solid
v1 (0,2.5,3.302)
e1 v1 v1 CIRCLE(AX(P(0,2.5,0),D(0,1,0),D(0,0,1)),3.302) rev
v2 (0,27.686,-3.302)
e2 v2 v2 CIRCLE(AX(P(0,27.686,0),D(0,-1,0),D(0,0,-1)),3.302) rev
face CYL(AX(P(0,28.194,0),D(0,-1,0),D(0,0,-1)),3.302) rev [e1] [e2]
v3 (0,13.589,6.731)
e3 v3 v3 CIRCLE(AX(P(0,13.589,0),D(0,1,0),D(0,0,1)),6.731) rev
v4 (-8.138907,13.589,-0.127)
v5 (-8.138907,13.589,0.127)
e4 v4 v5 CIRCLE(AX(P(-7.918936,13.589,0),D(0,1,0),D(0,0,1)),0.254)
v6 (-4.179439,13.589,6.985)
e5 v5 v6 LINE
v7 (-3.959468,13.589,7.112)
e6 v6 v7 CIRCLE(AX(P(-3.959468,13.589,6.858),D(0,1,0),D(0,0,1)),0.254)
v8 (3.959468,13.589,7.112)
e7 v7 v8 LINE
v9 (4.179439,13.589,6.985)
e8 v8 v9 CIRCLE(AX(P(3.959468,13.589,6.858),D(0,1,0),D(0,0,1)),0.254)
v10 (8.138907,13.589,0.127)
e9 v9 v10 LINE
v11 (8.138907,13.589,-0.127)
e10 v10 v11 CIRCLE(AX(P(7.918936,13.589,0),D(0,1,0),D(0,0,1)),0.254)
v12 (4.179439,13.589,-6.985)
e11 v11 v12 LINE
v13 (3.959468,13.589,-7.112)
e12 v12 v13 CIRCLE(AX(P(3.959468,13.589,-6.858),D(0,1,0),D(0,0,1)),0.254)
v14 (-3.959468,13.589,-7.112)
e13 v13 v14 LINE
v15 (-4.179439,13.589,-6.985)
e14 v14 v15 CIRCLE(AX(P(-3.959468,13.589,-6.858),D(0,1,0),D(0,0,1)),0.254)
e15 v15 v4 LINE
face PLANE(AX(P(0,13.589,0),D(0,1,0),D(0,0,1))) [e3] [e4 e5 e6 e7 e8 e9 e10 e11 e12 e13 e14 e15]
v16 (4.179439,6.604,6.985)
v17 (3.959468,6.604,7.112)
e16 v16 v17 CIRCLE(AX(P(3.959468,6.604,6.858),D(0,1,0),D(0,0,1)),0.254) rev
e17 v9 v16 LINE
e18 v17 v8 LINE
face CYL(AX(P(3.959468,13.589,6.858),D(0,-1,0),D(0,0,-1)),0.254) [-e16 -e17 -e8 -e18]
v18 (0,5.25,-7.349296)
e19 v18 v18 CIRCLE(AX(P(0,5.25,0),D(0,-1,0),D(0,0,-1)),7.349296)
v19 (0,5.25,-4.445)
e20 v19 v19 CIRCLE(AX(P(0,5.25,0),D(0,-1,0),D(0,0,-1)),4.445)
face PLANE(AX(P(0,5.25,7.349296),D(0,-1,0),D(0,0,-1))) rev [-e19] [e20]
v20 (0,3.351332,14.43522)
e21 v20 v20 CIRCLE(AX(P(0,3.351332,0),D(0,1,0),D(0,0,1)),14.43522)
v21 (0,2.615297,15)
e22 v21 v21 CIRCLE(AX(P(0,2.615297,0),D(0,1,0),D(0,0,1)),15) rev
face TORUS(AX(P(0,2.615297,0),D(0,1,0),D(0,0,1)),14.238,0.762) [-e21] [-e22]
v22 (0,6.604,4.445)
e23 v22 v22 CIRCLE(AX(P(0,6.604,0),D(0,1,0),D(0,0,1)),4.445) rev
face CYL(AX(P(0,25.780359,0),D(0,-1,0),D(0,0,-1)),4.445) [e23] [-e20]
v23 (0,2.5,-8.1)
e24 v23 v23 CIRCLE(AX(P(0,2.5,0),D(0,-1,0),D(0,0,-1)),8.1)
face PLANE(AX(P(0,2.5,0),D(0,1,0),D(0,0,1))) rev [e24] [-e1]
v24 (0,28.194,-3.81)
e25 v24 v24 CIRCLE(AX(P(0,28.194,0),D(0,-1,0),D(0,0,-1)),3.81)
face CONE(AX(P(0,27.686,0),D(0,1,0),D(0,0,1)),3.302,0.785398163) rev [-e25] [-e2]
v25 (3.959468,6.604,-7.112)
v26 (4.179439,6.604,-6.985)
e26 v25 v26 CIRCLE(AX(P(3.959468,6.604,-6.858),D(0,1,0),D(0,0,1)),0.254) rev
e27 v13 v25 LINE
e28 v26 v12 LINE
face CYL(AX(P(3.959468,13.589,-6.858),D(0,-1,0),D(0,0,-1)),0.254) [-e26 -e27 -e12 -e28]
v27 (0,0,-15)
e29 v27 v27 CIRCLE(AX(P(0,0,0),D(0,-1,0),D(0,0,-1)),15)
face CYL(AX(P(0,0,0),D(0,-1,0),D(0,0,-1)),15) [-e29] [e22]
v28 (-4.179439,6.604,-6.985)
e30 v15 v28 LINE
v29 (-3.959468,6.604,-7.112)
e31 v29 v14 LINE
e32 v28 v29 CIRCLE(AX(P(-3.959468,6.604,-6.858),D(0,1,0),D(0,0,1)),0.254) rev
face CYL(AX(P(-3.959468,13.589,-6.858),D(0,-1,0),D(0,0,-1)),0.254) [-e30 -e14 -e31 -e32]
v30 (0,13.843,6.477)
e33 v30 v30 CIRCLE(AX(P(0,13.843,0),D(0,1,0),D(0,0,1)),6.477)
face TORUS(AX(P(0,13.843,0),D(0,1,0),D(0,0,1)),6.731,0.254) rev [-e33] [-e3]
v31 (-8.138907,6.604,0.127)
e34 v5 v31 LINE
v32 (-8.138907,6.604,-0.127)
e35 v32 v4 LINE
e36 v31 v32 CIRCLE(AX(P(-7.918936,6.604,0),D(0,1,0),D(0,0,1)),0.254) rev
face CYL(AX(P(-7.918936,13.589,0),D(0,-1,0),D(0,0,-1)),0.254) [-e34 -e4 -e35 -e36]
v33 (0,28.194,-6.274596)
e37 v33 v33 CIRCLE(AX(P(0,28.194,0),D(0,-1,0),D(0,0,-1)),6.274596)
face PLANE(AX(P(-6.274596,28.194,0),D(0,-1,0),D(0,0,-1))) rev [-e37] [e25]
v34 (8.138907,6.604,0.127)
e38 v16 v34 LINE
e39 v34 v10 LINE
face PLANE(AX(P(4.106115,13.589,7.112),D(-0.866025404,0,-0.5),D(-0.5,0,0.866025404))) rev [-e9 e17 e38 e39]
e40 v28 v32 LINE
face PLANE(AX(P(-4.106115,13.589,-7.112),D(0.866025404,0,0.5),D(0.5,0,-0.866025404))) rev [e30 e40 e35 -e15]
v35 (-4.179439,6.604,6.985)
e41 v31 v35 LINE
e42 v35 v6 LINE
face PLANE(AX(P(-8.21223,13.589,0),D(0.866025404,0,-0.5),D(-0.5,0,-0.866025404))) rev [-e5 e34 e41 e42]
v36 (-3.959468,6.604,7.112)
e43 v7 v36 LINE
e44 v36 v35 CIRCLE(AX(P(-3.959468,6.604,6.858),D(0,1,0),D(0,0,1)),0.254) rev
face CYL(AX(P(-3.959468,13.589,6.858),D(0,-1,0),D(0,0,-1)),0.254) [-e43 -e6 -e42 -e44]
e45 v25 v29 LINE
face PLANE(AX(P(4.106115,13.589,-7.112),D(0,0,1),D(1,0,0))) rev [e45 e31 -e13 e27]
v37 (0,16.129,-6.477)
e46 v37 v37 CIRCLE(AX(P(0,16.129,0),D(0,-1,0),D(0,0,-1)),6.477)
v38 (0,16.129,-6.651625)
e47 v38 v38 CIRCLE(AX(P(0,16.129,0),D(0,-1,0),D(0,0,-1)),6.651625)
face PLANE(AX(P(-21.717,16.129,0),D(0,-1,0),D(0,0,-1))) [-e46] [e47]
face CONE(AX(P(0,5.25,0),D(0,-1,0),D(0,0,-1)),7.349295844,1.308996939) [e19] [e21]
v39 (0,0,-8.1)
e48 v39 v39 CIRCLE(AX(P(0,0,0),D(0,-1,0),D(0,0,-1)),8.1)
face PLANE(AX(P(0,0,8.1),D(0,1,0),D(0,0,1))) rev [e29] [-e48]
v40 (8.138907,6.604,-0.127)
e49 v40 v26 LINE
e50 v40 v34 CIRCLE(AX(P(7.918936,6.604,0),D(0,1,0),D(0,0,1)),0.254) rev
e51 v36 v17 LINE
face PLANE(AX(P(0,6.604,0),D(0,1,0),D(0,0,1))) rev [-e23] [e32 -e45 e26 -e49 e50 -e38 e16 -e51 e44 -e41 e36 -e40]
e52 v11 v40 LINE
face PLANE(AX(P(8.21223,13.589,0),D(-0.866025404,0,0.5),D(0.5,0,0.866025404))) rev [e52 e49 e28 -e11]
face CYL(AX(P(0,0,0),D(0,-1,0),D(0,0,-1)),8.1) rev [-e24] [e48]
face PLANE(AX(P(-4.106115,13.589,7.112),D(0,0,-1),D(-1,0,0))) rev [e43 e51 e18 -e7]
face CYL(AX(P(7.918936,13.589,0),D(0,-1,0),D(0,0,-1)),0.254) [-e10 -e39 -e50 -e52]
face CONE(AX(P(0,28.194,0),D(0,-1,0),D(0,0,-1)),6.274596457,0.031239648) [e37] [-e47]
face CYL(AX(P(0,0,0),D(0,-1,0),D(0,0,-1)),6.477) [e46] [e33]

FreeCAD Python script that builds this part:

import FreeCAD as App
import Part
import Sketcher
from FreeCAD import Vector
Q = App.Units.Quantity


def edges_at(feature, points):
    """Names of the edges that pass closest to the given points."""
    edges = feature.Shape.Edges
    near = lambda p: min(range(len(edges)), key=lambda i: edges[i].distToShape(Part.Vertex(*p))[0])
    return sorted({f"Edge{near(p) + 1}" for p in points})


def add_polygon(sketch, points):
    """Adds a closed chain of lines whose ends are joined by coincident constraints."""
    first, n = sketch.GeometryCount, len(points)
    for a, b in zip(points, points[1:] + points[:1]):
        sketch.addGeometry(Part.LineSegment(App.Vector(*a, 0), App.Vector(*b, 0)), False)
    for i in range(n):
        sketch.addConstraint(Sketcher.Constraint("Coincident", first + i, 2, first + (i + 1) % n, 1))

doc = App.newDocument("Part")
params = doc.addObject("Spreadsheet::Sheet", "Params")
for row, (alias, value) in enumerate([
    ("revolution_angle", "360 deg"),
    ("sketch2_diameter", "0.35 in"),
    ("pad1_length", "4.104 mm"),
    ("pad2_length", "0.275 in"),
    ("sketch4_width", "0.265 in"),
    ("sketch4_height", "0.575 in"),
    ("revolution2_angle", "360 deg"),
    ("sketch5_width", "0.6 in"),
    ("sketch5_height", "0.1 in"),
    ("groove_angle", "360 deg"),
    ("sketch6_diameter", "0.26 in"),
    ("fillet_radius", "0.01 in"),
    ("fillet2_radius", "0.03 in"),
    ("chamfer_size", "0.02 in"),
    ("fillet3_radius", "0.01 in"),
], start=1):
    params.set(f"A{row}", alias)
    params.set(f"B{row}", "=" + value)
    params.setAlias(f"B{row}", alias)

body = doc.addObject("PartDesign::Body", "Body")

# Sketch on YZ plane
sketch1 = body.newObject("Sketcher::SketchObject", "Sketch")
sketch1.AttachmentSupport = (doc.getObject("YZ_Plane"), [""])
sketch1.MapMode = "FlatFace"
add_polygon(sketch1, [(3.2, 15), (0, 15), (0, 8.1), (2.5, 8.1), (2.5, 0), (5.2, 0), (5.2, 7.3)])  # lines 0-6
sketch1.addConstraint(Sketcher.Constraint("Horizontal", 0))
sketch1.addConstraint(Sketcher.Constraint("Vertical", 1))
sketch1.addConstraint(Sketcher.Constraint("Horizontal", 2))
sketch1.addConstraint(Sketcher.Constraint("Vertical", 3))
sketch1.addConstraint(Sketcher.Constraint("Horizontal", 4))
sketch1.addConstraint(Sketcher.Constraint("Vertical", 5))
sketch1.addConstraint(Sketcher.Constraint("PointOnObject", 0, 2, -2))
sketch1.addConstraint(Sketcher.Constraint("PointOnObject", 3, 2, -1))
sketch1.addConstraint(Sketcher.Constraint("Angle", 6, Q("105 deg")))
sketch1.addConstraint(Sketcher.Constraint("DistanceX", 0, 2, 0, 1, Q("3.2 mm")))
sketch1.addConstraint(Sketcher.Constraint("DistanceX", 2, 1, 2, 2, Q("2.5 mm")))
sketch1.addConstraint(Sketcher.Constraint("DistanceX", 4, 1, 4, 2, Q("2.75 mm")))
sketch1.addConstraint(Sketcher.Constraint("DistanceY", 1, 2, 1, 1, Q("6.9 mm")))
sketch1.addConstraint(Sketcher.Constraint("DistanceY", 3, 2, 3, 1, Q("8.1 mm")))
revolution = body.newObject("PartDesign::Revolution", "Revolution")
revolution.Profile = sketch1
revolution.ReferenceAxis = (sketch1, ["H_Axis"])
revolution.setExpression("Angle", "Params.revolution_angle")

# Sketch on XZ plane
sketch2 = body.newObject("Sketcher::SketchObject", "Sketch001")
sketch2.AttachmentSupport = (doc.getObject("XZ_Plane"), [""])
sketch2.MapMode = "FlatFace"
sketch2.AttachmentOffset = App.Placement(Vector(0, 0, -2.5), App.Rotation())
sketch2.addGeometry(Part.Circle(Vector(0, 0, 0), Vector(0, 0, 1), 4.4), False)
sketch2.addConstraint(Sketcher.Constraint("Coincident", 0, 3, -1, 1))
sketch2.addConstraint(Sketcher.Constraint("Diameter", 0, Q("0.35 in")))
sketch2.setExpression("Constraints[1]", "Params.sketch2_diameter")
pad1 = body.newObject("PartDesign::Pad", "Pad")
pad1.Profile = sketch2
pad1.setExpression("Length", "Params.pad1_length")
pad1.Reversed = True

# Sketch on XZ plane
sketch3 = body.newObject("Sketcher::SketchObject", "Sketch002")
sketch3.AttachmentSupport = (doc.getObject("XZ_Plane"), [""])
sketch3.MapMode = "FlatFace"
sketch3.AttachmentOffset = App.Placement(Vector(0, 0, -0.26 * 25.4), App.Rotation())
add_polygon(sketch3, [(4, -7), (-4, -7), (-8, 0), (-4, 7), (4, 7), (8, 0)])  # lines 0-5
sketch3.addConstraint(Sketcher.Constraint("Horizontal", 0))
sketch3.addConstraint(Sketcher.Constraint("Horizontal", 3))
sketch3.addConstraint(Sketcher.Constraint("Symmetric", 0, 2, 3, 2, -1, 1))
sketch3.addConstraint(Sketcher.Constraint("Symmetric", 1, 2, 4, 2, -1, 1))
sketch3.addConstraint(Sketcher.Constraint("PointOnObject", 1, 2, -1))
sketch3.addConstraint(Sketcher.Constraint("Parallel", 2, 5))
sketch3.addConstraint(Sketcher.Constraint("Vertical", 0, 2, 2, 2))
sketch3.addConstraint(Sketcher.Constraint("Angle", 1, Q("120 deg")))
sketch3.addConstraint(Sketcher.Constraint("DistanceY", 0, 2, -1, 1, Q("0.28 in")))
sketch3.addConstraint(Sketcher.Constraint("DistanceX", 0, 2, 0, 1, Q("8.21223 mm")))
pad2 = body.newObject("PartDesign::Pad", "Pad001")
pad2.Profile = sketch3
pad2.setExpression("Length", "Params.pad2_length")
pad2.Reversed = True

# Sketch on XY plane
sketch4 = body.newObject("Sketcher::SketchObject", "Sketch003")
sketch4.AttachmentSupport = (doc.getObject("XY_Plane"), [""])
sketch4.MapMode = "FlatFace"
add_polygon(sketch4, [(-6, 28), (-7, 14), (0, 14), (0, 28)])  # lines 0-3
sketch4.addConstraint(Sketcher.Constraint("Horizontal", 1))
sketch4.addConstraint(Sketcher.Constraint("Vertical", 2))
sketch4.addConstraint(Sketcher.Constraint("Horizontal", 3))
sketch4.addConstraint(Sketcher.Constraint("PointOnObject", 1, 2, -2))
sketch4.addConstraint(Sketcher.Constraint("DistanceX", 1, 1, 1, 2, Q("0.265 in")))
sketch4.addConstraint(Sketcher.Constraint("DistanceY", 2, 1, 2, 2, Q("0.575 in")))
sketch4.addConstraint(Sketcher.Constraint("DistanceY", -1, 1, 2, 2, Q("1.11 in")))
sketch4.addConstraint(Sketcher.Constraint("Distance", 0, Q("14.61213 mm")))
sketch4.setExpression("Constraints[8]", "Params.sketch4_width")
sketch4.setExpression("Constraints[9]", "Params.sketch4_height")
revolution2 = body.newObject("PartDesign::Revolution", "Revolution001")
revolution2.Profile = sketch4
revolution2.ReferenceAxis = (sketch4, ["V_Axis"])
revolution2.setExpression("Angle", "Params.revolution2_angle")

# Sketch on XY plane
sketch5 = body.newObject("Sketcher::SketchObject", "Sketch004")
sketch5.AttachmentSupport = (doc.getObject("XY_Plane"), [""])
sketch5.MapMode = "FlatFace"
add_polygon(sketch5, [(-21.7, 16.1), (-21.7, 13.6), (-6.5, 13.6), (-6.5, 16.1)])  # lines 0-3
sketch5.addConstraint(Sketcher.Constraint("Vertical", 0))
sketch5.addConstraint(Sketcher.Constraint("Horizontal", 1))
sketch5.addConstraint(Sketcher.Constraint("Vertical", 2))
sketch5.addConstraint(Sketcher.Constraint("Horizontal", 3))
sketch5.addConstraint(Sketcher.Constraint("DistanceX", 1, 1, 1, 2, Q("0.6 in")))
sketch5.addConstraint(Sketcher.Constraint("DistanceY", 0, 2, 0, 1, Q("0.1 in")))
sketch5.addConstraint(Sketcher.Constraint("DistanceX", 0, 2, -1, 1, Q("0.855 in")))
sketch5.addConstraint(Sketcher.Constraint("DistanceY", -1, 1, 0, 2, Q("0.535 in")))
sketch5.setExpression("Constraints[8]", "Params.sketch5_width")
sketch5.setExpression("Constraints[9]", "Params.sketch5_height")
groove = body.newObject("PartDesign::Groove", "Groove")
groove.Profile = sketch5
groove.ReferenceAxis = (sketch5, ["V_Axis"])
groove.setExpression("Angle", "Params.groove_angle")

# Sketch on XZ plane
sketch6 = body.newObject("Sketcher::SketchObject", "Sketch005")
sketch6.AttachmentSupport = (doc.getObject("XZ_Plane"), [""])
sketch6.MapMode = "FlatFace"
sketch6.addGeometry(Part.Circle(Vector(0, 0, 0), Vector(0, 0, 1), 3.3), False)
sketch6.addConstraint(Sketcher.Constraint("Coincident", 0, 3, -1, 1))
sketch6.addConstraint(Sketcher.Constraint("Diameter", 0, Q("0.26 in")))
sketch6.setExpression("Constraints[1]", "Params.sketch6_diameter")
pocket1 = body.newObject("PartDesign::Pocket", "Pocket")
pocket1.Profile = sketch6
pocket1.Type = "ThroughAll"
doc.recompute()

fillet = body.newObject("PartDesign::Fillet", "Fillet")
fillet.Base = (pocket1, edges_at(pocket1, [
    (8.212, 10.097, 0),
    (4.106, 10.097, -7.112),
    (-4.106, 10.097, -7.112),
    (-8.212, 10.097, 0),
    (-4.106, 10.097, 7.112),
    (4.106, 10.097, 7.112),
]))
fillet.setExpression("Radius", "Params.fillet_radius")
doc.recompute()

fillet2 = body.newObject("PartDesign::Fillet", "Fillet001")
fillet2.Base = (fillet, edges_at(fillet, [(0, 3.2, 15)]))
fillet2.setExpression("Radius", "Params.fillet2_radius")
doc.recompute()

chamfer = body.newObject("PartDesign::Chamfer", "Chamfer")
chamfer.Base = (fillet2, edges_at(fillet2, [(0, 28.194, -3.302)]))
chamfer.setExpression("Size", "Params.chamfer_size")
doc.recompute()

fillet3 = body.newObject("PartDesign::Fillet", "Fillet002")
fillet3.Base = (chamfer, edges_at(chamfer, [(0, 13.589, 6.477)]))
fillet3.setExpression("Radius", "Params.fillet3_radius")

doc.recompute()
